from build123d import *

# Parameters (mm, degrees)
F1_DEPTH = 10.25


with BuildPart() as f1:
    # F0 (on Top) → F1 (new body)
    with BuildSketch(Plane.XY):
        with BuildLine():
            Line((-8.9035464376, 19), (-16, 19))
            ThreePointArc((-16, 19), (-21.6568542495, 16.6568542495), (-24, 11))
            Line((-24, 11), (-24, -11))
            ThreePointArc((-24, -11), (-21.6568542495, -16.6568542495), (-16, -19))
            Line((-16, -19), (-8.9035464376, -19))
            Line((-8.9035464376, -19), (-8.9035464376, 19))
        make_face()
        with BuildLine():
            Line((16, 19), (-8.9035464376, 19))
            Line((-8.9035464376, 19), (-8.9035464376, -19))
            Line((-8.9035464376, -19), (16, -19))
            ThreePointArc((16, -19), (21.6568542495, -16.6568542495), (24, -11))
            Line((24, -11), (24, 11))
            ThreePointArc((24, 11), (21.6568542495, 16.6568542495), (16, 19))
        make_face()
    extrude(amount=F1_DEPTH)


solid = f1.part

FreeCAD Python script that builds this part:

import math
import FreeCAD as App
import Part
import Sketcher

doc = App.newDocument("Part")
body = doc.addObject("PartDesign::Body", "Body")

# Sketch on XY plane
sketch1 = body.newObject("Sketcher::SketchObject", "Sketch")
sketch1.AttachmentSupport = (doc.getObject("XY_Plane"), [""])
sketch1.MapMode = "FlatFace"
sketch1.addGeometry(Part.ArcOfCircle(Part.Circle(App.Vector(-16, 11, 0), App.Vector(0, 0, 1), 8), math.radians(90), math.radians(180)), False)
sketch1.addGeometry(Part.LineSegment(App.Vector(-24, 11, 0), App.Vector(-24, -11, 0)), False)
sketch1.addGeometry(Part.ArcOfCircle(Part.Circle(App.Vector(-16, -11, 0), App.Vector(0, 0, 1), 8), math.radians(180), math.radians(270)), False)
sketch1.addGeometry(Part.LineSegment(App.Vector(-16, -19, 0), App.Vector(16, -19, 0)), False)
sketch1.addGeometry(Part.ArcOfCircle(Part.Circle(App.Vector(16, -11, 0), App.Vector(0, 0, 1), 8), math.radians(-90), math.radians(0)), False)
sketch1.addGeometry(Part.LineSegment(App.Vector(24, -11, 0), App.Vector(24, 11, 0)), False)
sketch1.addGeometry(Part.ArcOfCircle(Part.Circle(App.Vector(16, 11, 0), App.Vector(0, 0, 1), 8), math.radians(0), math.radians(90)), False)
sketch1.addGeometry(Part.LineSegment(App.Vector(16, 19, 0), App.Vector(-16, 19, 0)), False)
sketch1.addConstraint(Sketcher.Constraint("Tangent", 0, 2, 1, 1))
sketch1.addConstraint(Sketcher.Constraint("Tangent", 1, 2, 2, 1))
sketch1.addConstraint(Sketcher.Constraint("Tangent", 2, 2, 3, 1))
sketch1.addConstraint(Sketcher.Constraint("Tangent", 3, 2, 4, 1))
sketch1.addConstraint(Sketcher.Constraint("Tangent", 4, 2, 5, 1))
sketch1.addConstraint(Sketcher.Constraint("Tangent", 5, 2, 6, 1))
sketch1.addConstraint(Sketcher.Constraint("Tangent", 6, 2, 7, 1))
sketch1.addConstraint(Sketcher.Constraint("Tangent", 7, 2, 0, 1))
sketch1.addConstraint(Sketcher.Constraint("Vertical", 1))
sketch1.addConstraint(Sketcher.Constraint("Horizontal", 3))
sketch1.addConstraint(Sketcher.Constraint("Vertical", 5))
sketch1.addConstraint(Sketcher.Constraint("Horizontal", 7))
sketch1.addConstraint(Sketcher.Constraint("Equal", 0, 2))
sketch1.addConstraint(Sketcher.Constraint("Equal", 2, 4))
sketch1.addConstraint(Sketcher.Constraint("Equal", 4, 6))
sketch1.addConstraint(Sketcher.Constraint("Symmetric", 0, 3, 4, 3, -1, 1))
sketch1.addConstraint(Sketcher.Constraint("Radius", 0, 8.0))
sketch1.addConstraint(Sketcher.Constraint("DistanceX", 3, 1, 3, 2, 32.0))
sketch1.addConstraint(Sketcher.Constraint("DistanceY", 1, 2, 1, 1, 22.0))
pad1 = body.newObject("PartDesign::Pad", "Pad")
pad1.Profile = sketch1
pad1.Length = 10.25

doc.recompute()
